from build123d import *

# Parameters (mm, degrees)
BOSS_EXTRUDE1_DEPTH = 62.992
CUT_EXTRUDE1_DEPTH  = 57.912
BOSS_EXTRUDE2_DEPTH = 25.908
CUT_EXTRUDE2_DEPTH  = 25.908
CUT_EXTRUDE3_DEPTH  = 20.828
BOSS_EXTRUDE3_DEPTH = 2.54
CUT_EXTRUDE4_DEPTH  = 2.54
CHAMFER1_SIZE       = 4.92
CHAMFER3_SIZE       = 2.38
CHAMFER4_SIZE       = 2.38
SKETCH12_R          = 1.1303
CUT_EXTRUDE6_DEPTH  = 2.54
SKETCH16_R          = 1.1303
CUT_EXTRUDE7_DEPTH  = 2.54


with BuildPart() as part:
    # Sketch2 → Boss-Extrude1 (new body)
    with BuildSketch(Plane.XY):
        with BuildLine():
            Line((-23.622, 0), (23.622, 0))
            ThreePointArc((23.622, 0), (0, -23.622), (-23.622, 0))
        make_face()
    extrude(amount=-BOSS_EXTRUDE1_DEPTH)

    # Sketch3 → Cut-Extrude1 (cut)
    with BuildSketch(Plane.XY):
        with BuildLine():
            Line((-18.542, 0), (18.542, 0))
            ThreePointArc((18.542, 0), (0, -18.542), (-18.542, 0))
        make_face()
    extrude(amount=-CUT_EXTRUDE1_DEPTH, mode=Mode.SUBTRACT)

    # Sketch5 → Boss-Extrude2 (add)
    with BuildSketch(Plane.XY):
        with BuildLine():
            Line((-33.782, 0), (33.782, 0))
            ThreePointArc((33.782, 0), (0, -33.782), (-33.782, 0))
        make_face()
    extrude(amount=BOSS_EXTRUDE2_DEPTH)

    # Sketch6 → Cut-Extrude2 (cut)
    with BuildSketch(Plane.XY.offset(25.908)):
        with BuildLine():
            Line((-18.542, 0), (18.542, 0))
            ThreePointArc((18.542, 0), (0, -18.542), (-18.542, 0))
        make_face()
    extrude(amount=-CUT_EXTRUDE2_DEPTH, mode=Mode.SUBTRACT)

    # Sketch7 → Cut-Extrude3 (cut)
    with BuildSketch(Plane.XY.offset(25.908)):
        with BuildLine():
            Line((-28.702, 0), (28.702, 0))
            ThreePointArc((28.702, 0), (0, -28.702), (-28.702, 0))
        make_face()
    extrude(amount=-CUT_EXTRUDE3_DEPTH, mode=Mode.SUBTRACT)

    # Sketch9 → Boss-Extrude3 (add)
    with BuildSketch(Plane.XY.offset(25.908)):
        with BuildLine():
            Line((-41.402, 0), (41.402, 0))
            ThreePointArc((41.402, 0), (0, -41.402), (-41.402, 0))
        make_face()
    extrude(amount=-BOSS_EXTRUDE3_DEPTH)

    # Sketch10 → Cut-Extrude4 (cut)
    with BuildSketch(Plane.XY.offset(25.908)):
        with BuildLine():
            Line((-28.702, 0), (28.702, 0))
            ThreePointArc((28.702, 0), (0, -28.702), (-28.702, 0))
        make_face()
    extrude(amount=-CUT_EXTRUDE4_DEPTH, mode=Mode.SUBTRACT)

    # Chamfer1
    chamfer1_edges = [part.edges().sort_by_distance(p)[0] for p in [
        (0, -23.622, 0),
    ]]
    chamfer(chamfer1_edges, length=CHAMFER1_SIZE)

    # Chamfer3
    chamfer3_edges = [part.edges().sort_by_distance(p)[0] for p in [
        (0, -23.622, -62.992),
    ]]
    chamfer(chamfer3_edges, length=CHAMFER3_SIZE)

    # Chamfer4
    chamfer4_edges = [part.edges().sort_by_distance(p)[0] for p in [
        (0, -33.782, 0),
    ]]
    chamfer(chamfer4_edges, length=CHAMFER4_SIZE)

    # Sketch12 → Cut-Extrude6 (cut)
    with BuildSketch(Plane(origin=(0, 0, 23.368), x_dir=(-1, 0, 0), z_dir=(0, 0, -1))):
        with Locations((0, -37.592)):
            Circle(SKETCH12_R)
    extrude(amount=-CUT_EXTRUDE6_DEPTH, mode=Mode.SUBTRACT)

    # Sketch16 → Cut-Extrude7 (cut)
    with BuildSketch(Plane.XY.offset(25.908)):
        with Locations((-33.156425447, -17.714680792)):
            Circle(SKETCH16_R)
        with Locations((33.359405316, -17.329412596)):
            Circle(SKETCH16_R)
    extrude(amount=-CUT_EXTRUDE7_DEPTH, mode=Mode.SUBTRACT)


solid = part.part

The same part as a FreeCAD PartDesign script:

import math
import FreeCAD as App
import Part
import Sketcher
from FreeCAD import Vector
Q = App.Units.Quantity


def edges_at(feature, points):
    """Names of the edges that pass closest to the given points."""
    edges = feature.Shape.Edges
    near = lambda p: min(range(len(edges)), key=lambda i: edges[i].distToShape(Part.Vertex(*p))[0])
    return sorted({f"Edge{near(p) + 1}" for p in points})

doc = App.newDocument("Part")
params = doc.addObject("Spreadsheet::Sheet", "Params")
for row, (alias, value) in enumerate([
    ("sketch1_radius", "0.93 in"),
    ("pad1_length", "2.48 in"),
    ("sketch2_radius", "0.73 in"),
    ("pocket1_length", "2.28 in"),
    ("sketch3_radius", "1.33 in"),
    ("pad2_length", "1.02 in"),
    ("sketch4_radius", "0.73 in"),
    ("pocket2_length", "1.02 in"),
    ("sketch5_radius", "1.13 in"),
    ("pocket3_length", "0.82 in"),
    ("sketch6_radius", "1.63 in"),
    ("pad3_length", "0.1 in"),
    ("sketch7_radius", "1.13 in"),
    ("pocket4_length", "0.1 in"),
    ("chamfer_size", "4.92 mm"),
    ("chamfer2_size", "2.38 mm"),
    ("chamfer3_size", "2.38 mm"),
    ("sketch8_diameter", "0.089 in"),
    ("pocket5_length", "0.1 in"),
    ("sketch9_diameter", "0.089 in"),
    ("pocket6_length", "0.1 in"),
], start=1):
    params.set(f"A{row}", alias)
    params.set(f"B{row}", "=" + value)
    params.setAlias(f"B{row}", alias)

body = doc.addObject("PartDesign::Body", "Body")

# Sketch on XY plane
sketch1 = body.newObject("Sketcher::SketchObject", "Sketch")
sketch1.AttachmentSupport = (doc.getObject("XY_Plane"), [""])
sketch1.MapMode = "FlatFace"
sketch1.addGeometry(Part.LineSegment(Vector(24, 0, 0), Vector(-24, 0, 0)), False)
sketch1.addGeometry(Part.ArcOfCircle(Part.Circle(Vector(0, 0, 0), Vector(0, 0, 1), 24), math.radians(180), math.radians(360)), False)
sketch1.addConstraint(Sketcher.Constraint("Coincident", 0, 1, 1, 2))
sketch1.addConstraint(Sketcher.Constraint("Coincident", 1, 1, 0, 2))
sketch1.addConstraint(Sketcher.Constraint("Horizontal", 0))
sketch1.addConstraint(Sketcher.Constraint("Coincident", 1, 3, -1, 1))
sketch1.addConstraint(Sketcher.Constraint("PointOnObject", 0, 1, -1))
sketch1.addConstraint(Sketcher.Constraint("Radius", 1, Q("0.93 in")))
sketch1.setExpression("Constraints[5]", "Params.sketch1_radius")
pad1 = body.newObject("PartDesign::Pad", "Pad")
pad1.Profile = sketch1
pad1.setExpression("Length", "Params.pad1_length")
pad1.Reversed = True

# Sketch on XY plane
sketch2 = body.newObject("Sketcher::SketchObject", "Sketch001")
sketch2.AttachmentSupport = (doc.getObject("XY_Plane"), [""])
sketch2.MapMode = "FlatFace"
sketch2.addGeometry(Part.LineSegment(Vector(19, 0, 0), Vector(-19, 0, 0)), False)
sketch2.addGeometry(Part.ArcOfCircle(Part.Circle(Vector(0, 0, 0), Vector(0, 0, 1), 19), math.radians(180), math.radians(360)), False)
sketch2.addConstraint(Sketcher.Constraint("Coincident", 0, 1, 1, 2))
sketch2.addConstraint(Sketcher.Constraint("Coincident", 1, 1, 0, 2))
sketch2.addConstraint(Sketcher.Constraint("Horizontal", 0))
sketch2.addConstraint(Sketcher.Constraint("Coincident", 1, 3, -1, 1))
sketch2.addConstraint(Sketcher.Constraint("PointOnObject", 0, 1, -1))
sketch2.addConstraint(Sketcher.Constraint("Radius", 1, Q("0.73 in")))
sketch2.setExpression("Constraints[5]", "Params.sketch2_radius")
pocket1 = body.newObject("PartDesign::Pocket", "Pocket")
pocket1.Profile = sketch2
pocket1.setExpression("Length", "Params.pocket1_length")

# Sketch on XY plane
sketch3 = body.newObject("Sketcher::SketchObject", "Sketch002")
sketch3.AttachmentSupport = (doc.getObject("XY_Plane"), [""])
sketch3.MapMode = "FlatFace"
sketch3.addGeometry(Part.LineSegment(Vector(34, 0, 0), Vector(-34, 0, 0)), False)
sketch3.addGeometry(Part.ArcOfCircle(Part.Circle(Vector(0, 0, 0), Vector(0, 0, 1), 34), math.radians(180), math.radians(360)), False)
sketch3.addConstraint(Sketcher.Constraint("Coincident", 0, 1, 1, 2))
sketch3.addConstraint(Sketcher.Constraint("Coincident", 1, 1, 0, 2))
sketch3.addConstraint(Sketcher.Constraint("Horizontal", 0))
sketch3.addConstraint(Sketcher.Constraint("Coincident", 1, 3, -1, 1))
sketch3.addConstraint(Sketcher.Constraint("PointOnObject", 0, 1, -1))
sketch3.addConstraint(Sketcher.Constraint("Radius", 1, Q("1.33 in")))
sketch3.setExpression("Constraints[5]", "Params.sketch3_radius")
pad2 = body.newObject("PartDesign::Pad", "Pad001")
pad2.Profile = sketch3
pad2.setExpression("Length", "Params.pad2_length")

# Sketch on XY plane
sketch4 = body.newObject("Sketcher::SketchObject", "Sketch003")
sketch4.AttachmentSupport = (doc.getObject("XY_Plane"), [""])
sketch4.MapMode = "FlatFace"
sketch4.AttachmentOffset = App.Placement(Vector(0, 0, 1.02 * 25.4), App.Rotation())
sketch4.addGeometry(Part.LineSegment(Vector(19, 0, 0), Vector(-19, 0, 0)), False)
sketch4.addGeometry(Part.ArcOfCircle(Part.Circle(Vector(0, 0, 0), Vector(0, 0, 1), 19), math.radians(180), math.radians(360)), False)
sketch4.addConstraint(Sketcher.Constraint("Coincident", 0, 1, 1, 2))
sketch4.addConstraint(Sketcher.Constraint("Coincident", 1, 1, 0, 2))
sketch4.addConstraint(Sketcher.Constraint("Horizontal", 0))
sketch4.addConstraint(Sketcher.Constraint("Coincident", 1, 3, -1, 1))
sketch4.addConstraint(Sketcher.Constraint("PointOnObject", 0, 1, -1))
sketch4.addConstraint(Sketcher.Constraint("Radius", 1, Q("0.73 in")))
sketch4.setExpression("Constraints[5]", "Params.sketch4_radius")
pocket2 = body.newObject("PartDesign::Pocket", "Pocket001")
pocket2.Profile = sketch4
pocket2.setExpression("Length", "Params.pocket2_length")

# Sketch on XY plane
sketch5 = body.newObject("Sketcher::SketchObject", "Sketch004")
sketch5.AttachmentSupport = (doc.getObject("XY_Plane"), [""])
sketch5.MapMode = "FlatFace"
sketch5.AttachmentOffset = App.Placement(Vector(0, 0, 1.02 * 25.4), App.Rotation())
sketch5.addGeometry(Part.LineSegment(Vector(29, 0, 0), Vector(-29, 0, 0)), False)
sketch5.addGeometry(Part.ArcOfCircle(Part.Circle(Vector(0, 0, 0), Vector(0, 0, 1), 29), math.radians(180), math.radians(360)), False)
sketch5.addConstraint(Sketcher.Constraint("Coincident", 0, 1, 1, 2))
sketch5.addConstraint(Sketcher.Constraint("Coincident", 1, 1, 0, 2))
sketch5.addConstraint(Sketcher.Constraint("Horizontal", 0))
sketch5.addConstraint(Sketcher.Constraint("Coincident", 1, 3, -1, 1))
sketch5.addConstraint(Sketcher.Constraint("PointOnObject", 0, 1, -1))
sketch5.addConstraint(Sketcher.Constraint("Radius", 1, Q("1.13 in")))
sketch5.setExpression("Constraints[5]", "Params.sketch5_radius")
pocket3 = body.newObject("PartDesign::Pocket", "Pocket002")
pocket3.Profile = sketch5
pocket3.setExpression("Length", "Params.pocket3_length")

# Sketch on XY plane
sketch6 = body.newObject("Sketcher::SketchObject", "Sketch005")
sketch6.AttachmentSupport = (doc.getObject("XY_Plane"), [""])
sketch6.MapMode = "FlatFace"
sketch6.AttachmentOffset = App.Placement(Vector(0, 0, 1.02 * 25.4), App.Rotation())
sketch6.addGeometry(Part.LineSegment(Vector(41, 0, 0), Vector(-41, 0, 0)), False)
sketch6.addGeometry(Part.ArcOfCircle(Part.Circle(Vector(0, 0, 0), Vector(0, 0, 1), 41), math.radians(180), math.radians(360)), False)
sketch6.addConstraint(Sketcher.Constraint("Coincident", 0, 1, 1, 2))
sketch6.addConstraint(Sketcher.Constraint("Coincident", 1, 1, 0, 2))
sketch6.addConstraint(Sketcher.Constraint("Horizontal", 0))
sketch6.addConstraint(Sketcher.Constraint("Coincident", 1, 3, -1, 1))
sketch6.addConstraint(Sketcher.Constraint("PointOnObject", 0, 1, -1))
sketch6.addConstraint(Sketcher.Constraint("Radius", 1, Q("1.63 in")))
sketch6.setExpression("Constraints[5]", "Params.sketch6_radius")
pad3 = body.newObject("PartDesign::Pad", "Pad002")
pad3.Profile = sketch6
pad3.setExpression("Length", "Params.pad3_length")
pad3.Reversed = True

# Sketch on XY plane
sketch7 = body.newObject("Sketcher::SketchObject", "Sketch006")
sketch7.AttachmentSupport = (doc.getObject("XY_Plane"), [""])
sketch7.MapMode = "FlatFace"
sketch7.AttachmentOffset = App.Placement(Vector(0, 0, 1.02 * 25.4), App.Rotation())
sketch7.addGeometry(Part.LineSegment(Vector(29, 0, 0), Vector(-29, 0, 0)), False)
sketch7.addGeometry(Part.ArcOfCircle(Part.Circle(Vector(0, 0, 0), Vector(0, 0, 1), 29), math.radians(180), math.radians(360)), False)
sketch7.addConstraint(Sketcher.Constraint("Coincident", 0, 1, 1, 2))
sketch7.addConstraint(Sketcher.Constraint("Coincident", 1, 1, 0, 2))
sketch7.addConstraint(Sketcher.Constraint("Horizontal", 0))
sketch7.addConstraint(Sketcher.Constraint("Coincident", 1, 3, -1, 1))
sketch7.addConstraint(Sketcher.Constraint("PointOnObject", 0, 1, -1))
sketch7.addConstraint(Sketcher.Constraint("Radius", 1, Q("1.13 in")))
sketch7.setExpression("Constraints[5]", "Params.sketch7_radius")
pocket4 = body.newObject("PartDesign::Pocket", "Pocket003")
pocket4.Profile = sketch7
pocket4.setExpression("Length", "Params.pocket4_length")
doc.recompute()

chamfer = body.newObject("PartDesign::Chamfer", "Chamfer")
chamfer.Base = (pocket4, edges_at(pocket4, [(0, -23.622, 0)]))
chamfer.setExpression("Size", "Params.chamfer_size")
doc.recompute()

chamfer2 = body.newObject("PartDesign::Chamfer", "Chamfer001")
chamfer2.Base = (chamfer, edges_at(chamfer, [(0, -23.622, -62.992)]))
chamfer2.setExpression("Size", "Params.chamfer2_size")
doc.recompute()

chamfer3 = body.newObject("PartDesign::Chamfer", "Chamfer002")
chamfer3.Base = (chamfer2, edges_at(chamfer2, [(0, -33.782, 0)]))
chamfer3.setExpression("Size", "Params.chamfer3_size")

# Sketch on XY plane
sketch8 = body.newObject("Sketcher::SketchObject", "Sketch007")
sketch8.AttachmentSupport = (doc.getObject("XY_Plane"), [""])
sketch8.MapMode = "FlatFace"
sketch8.AttachmentOffset = App.Placement(Vector(0, 0, 0.92 * 25.4), App.Rotation())
sketch8.addGeometry(Part.Circle(Vector(0, -37.6, 0), Vector(0, 0, 1), 1.1), False)
sketch8.addConstraint(Sketcher.Constraint("PointOnObject", 0, 3, -2))
sketch8.addConstraint(Sketcher.Constraint("Diameter", 0, Q("0.089 in")))
sketch8.addConstraint(Sketcher.Constraint("DistanceY", 0, 3, -1, 1, Q("1.48 in")))
sketch8.setExpression("Constraints[1]", "Params.sketch8_diameter")
pocket5 = body.newObject("PartDesign::Pocket", "Pocket004")
pocket5.Profile = sketch8
pocket5.setExpression("Length", "Params.pocket5_length")
pocket5.Reversed = True

# Sketch on XY plane
sketch9 = body.newObject("Sketcher::SketchObject", "Sketch008")
sketch9.AttachmentSupport = (doc.getObject("XY_Plane"), [""])
sketch9.MapMode = "FlatFace"
sketch9.AttachmentOffset = App.Placement(Vector(0, 0, 1.02 * 25.4), App.Rotation())
sketch9.addGeometry(Part.Circle(Vector(-33.2, -17.7, 0), Vector(0, 0, 1), 1.1), False)
sketch9.addGeometry(Part.Circle(Vector(33.4, -17.3, 0), Vector(0, 0, 1), 1.1), False)
sketch9.addConstraint(Sketcher.Constraint("Equal", 0, 1))
sketch9.addConstraint(Sketcher.Constraint("Diameter", 0, Q("0.089 in")))
sketch9.addConstraint(Sketcher.Constraint("DistanceY", 0, 3, -1, 1, Q("17.714681 mm")))
sketch9.addConstraint(Sketcher.Constraint("DistanceX", 0, 3, 1, 3, Q("66.515831 mm")))
sketch9.addConstraint(Sketcher.Constraint("DistanceY", 0, 3, 1, 3, Q("0.385268 mm")))
sketch9.addConstraint(Sketcher.Constraint("DistanceX", 0, 3, -1, 1, Q("33.156425 mm")))
sketch9.setExpression("Constraints[1]", "Params.sketch9_diameter")
pocket6 = body.newObject("PartDesign::Pocket", "Pocket005")
pocket6.Profile = sketch9
pocket6.setExpression("Length", "Params.pocket6_length")

doc.recompute()
